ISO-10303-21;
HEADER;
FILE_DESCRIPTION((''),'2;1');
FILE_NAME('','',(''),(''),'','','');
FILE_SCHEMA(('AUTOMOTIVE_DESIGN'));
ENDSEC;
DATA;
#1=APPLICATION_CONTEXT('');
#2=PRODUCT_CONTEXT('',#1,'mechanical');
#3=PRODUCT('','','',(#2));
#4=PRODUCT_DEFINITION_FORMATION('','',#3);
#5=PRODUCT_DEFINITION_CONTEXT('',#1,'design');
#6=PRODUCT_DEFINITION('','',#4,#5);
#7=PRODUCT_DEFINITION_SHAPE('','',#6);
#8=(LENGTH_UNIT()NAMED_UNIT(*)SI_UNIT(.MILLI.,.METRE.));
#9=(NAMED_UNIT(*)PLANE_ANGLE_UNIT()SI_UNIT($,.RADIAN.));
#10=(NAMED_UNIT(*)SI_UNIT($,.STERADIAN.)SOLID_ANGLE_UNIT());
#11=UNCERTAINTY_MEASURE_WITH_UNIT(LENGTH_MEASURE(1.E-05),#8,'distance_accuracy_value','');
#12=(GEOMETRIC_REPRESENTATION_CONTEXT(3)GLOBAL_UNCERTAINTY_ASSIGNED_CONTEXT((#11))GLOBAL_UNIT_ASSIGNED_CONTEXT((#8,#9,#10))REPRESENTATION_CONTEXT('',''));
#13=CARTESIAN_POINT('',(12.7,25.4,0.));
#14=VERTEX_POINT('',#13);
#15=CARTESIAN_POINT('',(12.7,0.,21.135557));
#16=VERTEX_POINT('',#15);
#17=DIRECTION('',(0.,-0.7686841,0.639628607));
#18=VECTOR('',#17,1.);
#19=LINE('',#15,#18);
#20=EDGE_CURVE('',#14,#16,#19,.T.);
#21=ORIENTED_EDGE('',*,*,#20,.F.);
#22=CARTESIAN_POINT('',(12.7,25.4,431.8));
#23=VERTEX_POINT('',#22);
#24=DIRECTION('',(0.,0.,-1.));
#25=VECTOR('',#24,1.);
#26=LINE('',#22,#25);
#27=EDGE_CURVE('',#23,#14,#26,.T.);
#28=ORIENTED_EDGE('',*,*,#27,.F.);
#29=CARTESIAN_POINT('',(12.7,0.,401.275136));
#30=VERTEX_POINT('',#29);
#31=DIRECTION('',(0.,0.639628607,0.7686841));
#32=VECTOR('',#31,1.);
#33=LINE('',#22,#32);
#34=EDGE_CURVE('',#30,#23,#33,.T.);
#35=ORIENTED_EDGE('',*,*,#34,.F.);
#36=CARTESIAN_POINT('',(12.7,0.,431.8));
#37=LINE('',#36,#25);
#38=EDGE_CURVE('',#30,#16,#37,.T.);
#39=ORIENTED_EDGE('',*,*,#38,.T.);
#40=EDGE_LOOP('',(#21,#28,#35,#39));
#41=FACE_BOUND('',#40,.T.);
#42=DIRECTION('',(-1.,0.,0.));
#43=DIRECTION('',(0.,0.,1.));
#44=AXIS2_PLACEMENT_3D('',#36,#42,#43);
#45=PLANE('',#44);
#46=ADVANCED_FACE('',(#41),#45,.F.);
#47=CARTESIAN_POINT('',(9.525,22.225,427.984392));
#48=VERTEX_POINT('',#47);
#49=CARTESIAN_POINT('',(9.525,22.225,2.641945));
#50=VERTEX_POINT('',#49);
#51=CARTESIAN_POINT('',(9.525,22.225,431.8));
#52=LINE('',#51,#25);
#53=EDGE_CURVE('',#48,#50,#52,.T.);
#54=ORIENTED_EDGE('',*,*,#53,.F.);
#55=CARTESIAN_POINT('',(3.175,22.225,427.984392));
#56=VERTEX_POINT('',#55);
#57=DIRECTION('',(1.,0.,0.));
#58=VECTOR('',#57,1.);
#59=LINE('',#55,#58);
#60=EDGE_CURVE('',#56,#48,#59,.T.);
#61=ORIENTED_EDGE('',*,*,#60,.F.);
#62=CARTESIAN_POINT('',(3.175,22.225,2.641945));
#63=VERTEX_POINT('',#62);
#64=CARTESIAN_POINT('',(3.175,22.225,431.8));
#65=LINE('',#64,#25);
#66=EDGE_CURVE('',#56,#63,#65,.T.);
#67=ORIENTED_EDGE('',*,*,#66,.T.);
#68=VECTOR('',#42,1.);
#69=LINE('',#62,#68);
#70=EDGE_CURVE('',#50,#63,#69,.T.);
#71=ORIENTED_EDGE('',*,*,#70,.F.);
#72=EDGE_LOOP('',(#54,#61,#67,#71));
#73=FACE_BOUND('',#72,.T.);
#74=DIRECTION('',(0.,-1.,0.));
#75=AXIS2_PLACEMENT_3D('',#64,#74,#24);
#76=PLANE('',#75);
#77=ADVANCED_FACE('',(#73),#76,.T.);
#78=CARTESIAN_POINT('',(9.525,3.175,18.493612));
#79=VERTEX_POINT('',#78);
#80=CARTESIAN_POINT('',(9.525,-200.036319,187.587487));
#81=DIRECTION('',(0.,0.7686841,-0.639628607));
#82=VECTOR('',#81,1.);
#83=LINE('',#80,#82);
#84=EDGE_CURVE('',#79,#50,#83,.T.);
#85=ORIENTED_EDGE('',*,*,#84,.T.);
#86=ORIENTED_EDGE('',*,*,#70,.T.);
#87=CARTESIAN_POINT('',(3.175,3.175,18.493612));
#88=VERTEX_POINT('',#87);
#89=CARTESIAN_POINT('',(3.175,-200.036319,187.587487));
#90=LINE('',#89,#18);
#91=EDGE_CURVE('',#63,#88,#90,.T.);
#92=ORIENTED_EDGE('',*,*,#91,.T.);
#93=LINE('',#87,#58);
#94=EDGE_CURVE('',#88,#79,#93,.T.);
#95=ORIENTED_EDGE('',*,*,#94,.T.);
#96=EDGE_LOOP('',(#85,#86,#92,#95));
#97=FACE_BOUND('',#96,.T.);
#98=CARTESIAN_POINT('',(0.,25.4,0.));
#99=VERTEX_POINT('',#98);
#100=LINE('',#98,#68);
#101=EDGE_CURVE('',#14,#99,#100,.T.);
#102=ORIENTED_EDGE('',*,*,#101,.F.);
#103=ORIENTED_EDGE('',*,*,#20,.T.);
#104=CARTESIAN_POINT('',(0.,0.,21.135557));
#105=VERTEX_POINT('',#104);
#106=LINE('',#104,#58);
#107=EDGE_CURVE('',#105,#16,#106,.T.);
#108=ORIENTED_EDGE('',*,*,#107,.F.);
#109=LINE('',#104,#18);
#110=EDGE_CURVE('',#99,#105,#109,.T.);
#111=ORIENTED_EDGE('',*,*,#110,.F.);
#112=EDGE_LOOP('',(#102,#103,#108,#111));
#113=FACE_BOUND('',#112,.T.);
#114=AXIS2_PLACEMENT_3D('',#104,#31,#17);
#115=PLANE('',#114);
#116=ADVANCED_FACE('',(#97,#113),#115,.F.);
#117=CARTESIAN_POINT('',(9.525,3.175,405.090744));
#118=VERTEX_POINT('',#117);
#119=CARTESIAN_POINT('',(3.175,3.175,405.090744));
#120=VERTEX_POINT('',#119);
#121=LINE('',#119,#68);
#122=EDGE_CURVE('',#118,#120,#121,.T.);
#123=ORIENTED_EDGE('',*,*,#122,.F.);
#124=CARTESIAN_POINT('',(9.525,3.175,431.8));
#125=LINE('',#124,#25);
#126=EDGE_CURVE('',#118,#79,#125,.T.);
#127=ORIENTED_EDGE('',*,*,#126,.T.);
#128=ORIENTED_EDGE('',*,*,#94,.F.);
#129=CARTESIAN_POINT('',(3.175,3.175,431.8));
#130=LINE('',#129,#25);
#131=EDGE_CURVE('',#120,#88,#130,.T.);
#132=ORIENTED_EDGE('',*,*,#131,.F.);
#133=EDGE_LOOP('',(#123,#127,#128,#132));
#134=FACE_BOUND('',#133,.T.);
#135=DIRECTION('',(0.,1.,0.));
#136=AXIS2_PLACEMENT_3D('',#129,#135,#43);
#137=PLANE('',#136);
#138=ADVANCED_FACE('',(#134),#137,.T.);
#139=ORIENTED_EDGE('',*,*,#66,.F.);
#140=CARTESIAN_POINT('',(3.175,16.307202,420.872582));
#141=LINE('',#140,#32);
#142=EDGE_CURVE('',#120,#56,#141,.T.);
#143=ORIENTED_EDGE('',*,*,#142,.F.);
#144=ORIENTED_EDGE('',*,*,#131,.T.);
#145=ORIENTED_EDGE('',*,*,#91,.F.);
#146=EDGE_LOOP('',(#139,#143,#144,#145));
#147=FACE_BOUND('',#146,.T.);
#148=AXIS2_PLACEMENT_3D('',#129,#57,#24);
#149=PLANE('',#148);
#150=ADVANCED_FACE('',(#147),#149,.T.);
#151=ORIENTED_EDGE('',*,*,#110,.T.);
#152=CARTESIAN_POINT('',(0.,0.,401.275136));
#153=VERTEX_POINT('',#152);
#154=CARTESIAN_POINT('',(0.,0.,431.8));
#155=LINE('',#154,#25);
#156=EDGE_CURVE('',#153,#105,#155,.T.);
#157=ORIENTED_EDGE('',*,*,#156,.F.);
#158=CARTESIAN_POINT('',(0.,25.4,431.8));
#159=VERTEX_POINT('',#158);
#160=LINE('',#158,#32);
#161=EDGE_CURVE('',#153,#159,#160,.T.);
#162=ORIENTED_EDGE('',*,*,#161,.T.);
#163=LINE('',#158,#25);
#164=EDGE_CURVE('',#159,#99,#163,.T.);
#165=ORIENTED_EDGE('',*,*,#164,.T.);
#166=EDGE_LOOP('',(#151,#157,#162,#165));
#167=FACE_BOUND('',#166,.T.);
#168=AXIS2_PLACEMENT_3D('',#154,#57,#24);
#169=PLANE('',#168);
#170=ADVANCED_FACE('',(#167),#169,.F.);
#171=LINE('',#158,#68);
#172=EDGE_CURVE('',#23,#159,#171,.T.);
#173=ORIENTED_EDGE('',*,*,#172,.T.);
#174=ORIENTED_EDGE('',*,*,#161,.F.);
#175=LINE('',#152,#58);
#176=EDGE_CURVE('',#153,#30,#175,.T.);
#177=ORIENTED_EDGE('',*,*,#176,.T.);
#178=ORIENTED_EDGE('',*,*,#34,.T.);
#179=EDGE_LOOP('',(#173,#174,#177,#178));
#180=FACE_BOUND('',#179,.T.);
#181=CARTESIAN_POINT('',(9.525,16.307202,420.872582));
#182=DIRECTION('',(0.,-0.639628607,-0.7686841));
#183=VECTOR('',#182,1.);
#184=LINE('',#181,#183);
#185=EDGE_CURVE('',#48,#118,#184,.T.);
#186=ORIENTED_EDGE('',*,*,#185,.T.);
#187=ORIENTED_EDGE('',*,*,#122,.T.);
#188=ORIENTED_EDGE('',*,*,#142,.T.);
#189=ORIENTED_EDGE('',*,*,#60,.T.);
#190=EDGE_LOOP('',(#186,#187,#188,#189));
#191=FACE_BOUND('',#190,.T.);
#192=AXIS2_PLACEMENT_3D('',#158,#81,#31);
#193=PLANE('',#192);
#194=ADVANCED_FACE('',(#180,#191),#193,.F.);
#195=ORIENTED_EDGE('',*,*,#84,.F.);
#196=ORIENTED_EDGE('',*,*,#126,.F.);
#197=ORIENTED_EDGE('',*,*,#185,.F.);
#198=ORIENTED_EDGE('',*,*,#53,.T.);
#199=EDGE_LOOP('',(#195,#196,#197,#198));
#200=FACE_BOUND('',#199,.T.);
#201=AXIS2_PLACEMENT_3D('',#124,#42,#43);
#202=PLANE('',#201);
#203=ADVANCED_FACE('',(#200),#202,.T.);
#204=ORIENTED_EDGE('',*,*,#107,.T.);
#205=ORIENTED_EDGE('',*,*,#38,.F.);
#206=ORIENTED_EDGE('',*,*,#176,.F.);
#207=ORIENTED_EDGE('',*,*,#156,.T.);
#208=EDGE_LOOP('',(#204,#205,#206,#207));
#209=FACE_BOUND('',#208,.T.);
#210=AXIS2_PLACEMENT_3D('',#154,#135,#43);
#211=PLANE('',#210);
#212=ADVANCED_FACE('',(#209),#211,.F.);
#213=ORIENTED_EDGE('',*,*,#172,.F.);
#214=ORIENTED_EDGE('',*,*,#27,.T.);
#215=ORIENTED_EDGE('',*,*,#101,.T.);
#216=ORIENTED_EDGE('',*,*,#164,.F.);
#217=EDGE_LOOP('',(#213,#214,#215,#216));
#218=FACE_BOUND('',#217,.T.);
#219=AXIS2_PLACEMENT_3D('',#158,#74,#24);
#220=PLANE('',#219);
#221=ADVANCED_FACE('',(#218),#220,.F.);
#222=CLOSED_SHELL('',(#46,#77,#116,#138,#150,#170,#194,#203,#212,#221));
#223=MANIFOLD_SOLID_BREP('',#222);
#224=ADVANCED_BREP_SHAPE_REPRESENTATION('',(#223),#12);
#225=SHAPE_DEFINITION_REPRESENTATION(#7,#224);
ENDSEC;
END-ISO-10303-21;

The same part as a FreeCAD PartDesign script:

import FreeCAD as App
import Part
import Sketcher
Q = App.Units.Quantity

doc = App.newDocument("Part")
body = doc.addObject("PartDesign::Body", "Body")

# Sketch on XY plane
sketch1 = body.newObject("Sketcher::SketchObject", "Sketch")
sketch1.AttachmentSupport = (doc.getObject("XY_Plane"), [""])
sketch1.MapMode = "FlatFace"
sketch1.addGeometry([
    Part.LineSegment(App.Vector(0, 25, 0), App.Vector(0, 0, 0)),  # 0
    Part.LineSegment(App.Vector(0, 0, 0), App.Vector(13, 0, 0)),  # 1
    Part.LineSegment(App.Vector(13, 0, 0), App.Vector(13, 25, 0)),  # 2
    Part.LineSegment(App.Vector(13, 25, 0), App.Vector(0, 25, 0)),  # 3
    Part.LineSegment(App.Vector(10, 3, 0), App.Vector(3, 3, 0)),  # 4
    Part.LineSegment(App.Vector(3, 3, 0), App.Vector(3, 22, 0)),  # 5
    Part.LineSegment(App.Vector(3, 22, 0), App.Vector(10, 22, 0)),  # 6
    Part.LineSegment(App.Vector(10, 22, 0), App.Vector(10, 3, 0)),  # 7
], False)
sketch1.addConstraint([
    Sketcher.Constraint("Coincident", 0, 2, 1, 1),
    Sketcher.Constraint("Coincident", 1, 2, 2, 1),
    Sketcher.Constraint("Coincident", 2, 2, 3, 1),
    Sketcher.Constraint("Coincident", 3, 2, 0, 1),
    Sketcher.Constraint("Coincident", 4, 2, 5, 1),
    Sketcher.Constraint("Coincident", 5, 2, 6, 1),
    Sketcher.Constraint("Coincident", 6, 2, 7, 1),
    Sketcher.Constraint("Coincident", 7, 2, 4, 1),
    Sketcher.Constraint("Vertical", 0),
    Sketcher.Constraint("Horizontal", 1),
    Sketcher.Constraint("Vertical", 2),
    Sketcher.Constraint("Horizontal", 3),
    Sketcher.Constraint("Horizontal", 4),
    Sketcher.Constraint("Vertical", 5),
    Sketcher.Constraint("Horizontal", 6),
    Sketcher.Constraint("Vertical", 7),
    Sketcher.Constraint("Coincident", 0, 2, -1, 1),
    Sketcher.Constraint("DistanceY", 0, 2, 0, 1, Q("1 in")),
    Sketcher.Constraint("DistanceX", 1, 1, 1, 2, Q("0.5 in")),
    Sketcher.Constraint("DistanceX", 4, 2, 4, 1, Q("0.25 in")),
    Sketcher.Constraint("DistanceY", 5, 1, 5, 2, Q("0.75 in")),
    Sketcher.Constraint("DistanceX", -1, 1, 4, 2, Q("0.125 in")),
    Sketcher.Constraint("DistanceY", -1, 1, 4, 2, Q("0.125 in")),
])
pad1 = body.newObject("PartDesign::Pad", "Pad")
pad1.Profile = sketch1
pad1.Length = Q("17 in")

# Sketch on YZ plane
sketch2 = body.newObject("Sketcher::SketchObject", "Sketch001")
sketch2.AttachmentSupport = (doc.getObject("YZ_Plane"), [""])
sketch2.MapMode = "FlatFace"
sketch2.AttachmentOffset = App.Placement(App.Vector(0, 0, 0.5 * 25.4), App.Rotation())
sketch2.addGeometry([
    Part.LineSegment(App.Vector(0, 401, 0), App.Vector(25, 432, 0)),
    Part.LineSegment(App.Vector(25, 432, 0), App.Vector(0, 432, 0)),
    Part.LineSegment(App.Vector(0, 432, 0), App.Vector(0, 401, 0)),
], False)
sketch2.addConstraint([
    Sketcher.Constraint("Coincident", 0, 2, 1, 1),
    Sketcher.Constraint("Coincident", 1, 2, 2, 1),
    Sketcher.Constraint("Coincident", 2, 2, 0, 1),
    Sketcher.Constraint("Horizontal", 1),
    Sketcher.Constraint("Vertical", 2),
    Sketcher.Constraint("PointOnObject", 1, 2, -2),
    Sketcher.Constraint("DistanceX", 1, 2, 1, 1, Q("1 in")),
    Sketcher.Constraint("DistanceY", -1, 1, 0, 2, Q("17 in")),
    Sketcher.Constraint("DistanceY", 2, 2, 2, 1, 30.524864),
])
pocket1 = body.newObject("PartDesign::Pocket", "Pocket")
pocket1.Profile = sketch2
pocket1.Type = "ThroughAll"

# Sketch on YZ plane
sketch3 = body.newObject("Sketcher::SketchObject", "Sketch002")
sketch3.AttachmentSupport = (doc.getObject("YZ_Plane"), [""])
sketch3.MapMode = "FlatFace"
sketch3.AttachmentOffset = App.Placement(App.Vector(0, 0, 0.5 * 25.4), App.Rotation())
sketch3.addGeometry([
    Part.LineSegment(App.Vector(25, 0, 0), App.Vector(0, 21, 0)),
    Part.LineSegment(App.Vector(0, 21, 0), App.Vector(0, 0, 0)),
    Part.LineSegment(App.Vector(0, 0, 0), App.Vector(25, 0, 0)),
], False)
sketch3.addConstraint([
    Sketcher.Constraint("Coincident", 0, 2, 1, 1),
    Sketcher.Constraint("Coincident", 1, 2, 2, 1),
    Sketcher.Constraint("Coincident", 2, 2, 0, 1),
    Sketcher.Constraint("Vertical", 1),
    Sketcher.Constraint("Horizontal", 2),
    Sketcher.Constraint("Coincident", 1, 2, -1, 1),
    Sketcher.Constraint("DistanceX", 2, 1, 2, 2, Q("1 in")),
    Sketcher.Constraint("DistanceY", 1, 2, 1, 1, 21.135557),
])
pocket2 = body.newObject("PartDesign::Pocket", "Pocket001")
pocket2.Profile = sketch3
pocket2.Type = "ThroughAll"

doc.recompute()
